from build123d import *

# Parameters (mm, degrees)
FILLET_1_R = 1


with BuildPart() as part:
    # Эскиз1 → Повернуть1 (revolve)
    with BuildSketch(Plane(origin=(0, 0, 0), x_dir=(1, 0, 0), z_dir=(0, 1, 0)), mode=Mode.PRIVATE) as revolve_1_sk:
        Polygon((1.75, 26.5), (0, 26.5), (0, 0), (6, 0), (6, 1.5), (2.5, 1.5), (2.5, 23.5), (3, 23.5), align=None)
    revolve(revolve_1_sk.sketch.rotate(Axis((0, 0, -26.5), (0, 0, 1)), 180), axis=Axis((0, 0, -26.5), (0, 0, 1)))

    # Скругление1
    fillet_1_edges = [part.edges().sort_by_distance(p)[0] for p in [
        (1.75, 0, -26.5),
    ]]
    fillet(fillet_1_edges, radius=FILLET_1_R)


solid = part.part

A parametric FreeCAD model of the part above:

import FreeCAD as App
import Part
import Sketcher
from FreeCAD import Vector
Q = App.Units.Quantity


def edges_at(feature, points):
    """Names of the edges that pass closest to the given points."""
    edges = feature.Shape.Edges
    near = lambda p: min(range(len(edges)), key=lambda i: edges[i].distToShape(Part.Vertex(*p))[0])
    return sorted({f"Edge{near(p) + 1}" for p in points})


def add_polygon(sketch, points):
    """Adds a closed chain of lines whose ends are joined by coincident constraints."""
    first, n = sketch.GeometryCount, len(points)
    for a, b in zip(points, points[1:] + points[:1]):
        sketch.addGeometry(Part.LineSegment(App.Vector(*a, 0), App.Vector(*b, 0)), False)
    for i in range(n):
        sketch.addConstraint(Sketcher.Constraint("Coincident", first + i, 2, first + (i + 1) % n, 1))

doc = App.newDocument("Part")
params = doc.addObject("Spreadsheet::Sheet", "Params")
for row, (alias, value) in enumerate([
    ("sketch1_width", "6 mm"),
    ("sketch1_height", "22 mm"),
    ("sketch1_width2", "3.5 mm"),
    ("sketch1_width3", "0.5 mm"),
    ("sketch1_height2", "26.5 mm"),
    ("revolution_angle", "360 deg"),
    ("fillet_radius", "1 mm"),
], start=1):
    params.set(f"A{row}", alias)
    params.set(f"B{row}", "=" + value)
    params.setAlias(f"B{row}", alias)

body = doc.addObject("PartDesign::Body", "Body")

sketch1 = body.newObject("Sketcher::SketchObject", "Sketch")
sketch1.AttachmentSupport = (doc.getObject("XZ_Plane"), [""])
sketch1.MapMode = "FlatFace"
add_polygon(sketch1, [(1.8, -26.5), (0, -26.5), (0, 0), (6, 0), (6, -1.5), (2.5, -1.5), (2.5, -23.5), (3, -23.5)])
sketch1.addConstraint(Sketcher.Constraint("Horizontal", 0))
sketch1.addConstraint(Sketcher.Constraint("Vertical", 1))
sketch1.addConstraint(Sketcher.Constraint("Horizontal", 2))
sketch1.addConstraint(Sketcher.Constraint("Vertical", 3))
sketch1.addConstraint(Sketcher.Constraint("Horizontal", 4))
sketch1.addConstraint(Sketcher.Constraint("Vertical", 5))
sketch1.addConstraint(Sketcher.Constraint("Horizontal", 6))
sketch1.addConstraint(Sketcher.Constraint("Coincident", 1, 2, -1, 1))
sketch1.addConstraint(Sketcher.Constraint("DistanceX", 2, 1, 2, 2, Q("6 mm")))
sketch1.addConstraint(Sketcher.Constraint("DistanceY", 5, 2, 5, 1, Q("22 mm")))
sketch1.addConstraint(Sketcher.Constraint("DistanceX", 4, 2, 4, 1, Q("3.5 mm")))
sketch1.addConstraint(Sketcher.Constraint("DistanceX", 6, 1, 6, 2, Q("0.5 mm")))
sketch1.addConstraint(Sketcher.Constraint("DistanceY", 1, 1, 1, 2, Q("26.5 mm")))
sketch1.addConstraint(Sketcher.Constraint("DistanceY", 3, 2, 3, 1, Q("1.5 mm")))
sketch1.addConstraint(Sketcher.Constraint("DistanceX", 0, 2, 0, 1, Q("1.75 mm")))
sketch1.setExpression("Constraints[16]", "Params.sketch1_width")
sketch1.setExpression("Constraints[17]", "Params.sketch1_height")
sketch1.setExpression("Constraints[18]", "Params.sketch1_width2")
sketch1.setExpression("Constraints[19]", "Params.sketch1_width3")
sketch1.setExpression("Constraints[20]", "Params.sketch1_height2")
revolution = body.newObject("PartDesign::Revolution", "Revolution")
revolution.Profile = sketch1
revolution.ReferenceAxis = (sketch1, ["V_Axis"])
revolution.setExpression("Angle", "Params.revolution_angle")
doc.recompute()

fillet = body.newObject("PartDesign::Fillet", "Fillet")
fillet.Base = (revolution, edges_at(revolution, [(1.75, 0, -26.5)]))
fillet.setExpression("Radius", "Params.fillet_radius")

doc.recompute()
